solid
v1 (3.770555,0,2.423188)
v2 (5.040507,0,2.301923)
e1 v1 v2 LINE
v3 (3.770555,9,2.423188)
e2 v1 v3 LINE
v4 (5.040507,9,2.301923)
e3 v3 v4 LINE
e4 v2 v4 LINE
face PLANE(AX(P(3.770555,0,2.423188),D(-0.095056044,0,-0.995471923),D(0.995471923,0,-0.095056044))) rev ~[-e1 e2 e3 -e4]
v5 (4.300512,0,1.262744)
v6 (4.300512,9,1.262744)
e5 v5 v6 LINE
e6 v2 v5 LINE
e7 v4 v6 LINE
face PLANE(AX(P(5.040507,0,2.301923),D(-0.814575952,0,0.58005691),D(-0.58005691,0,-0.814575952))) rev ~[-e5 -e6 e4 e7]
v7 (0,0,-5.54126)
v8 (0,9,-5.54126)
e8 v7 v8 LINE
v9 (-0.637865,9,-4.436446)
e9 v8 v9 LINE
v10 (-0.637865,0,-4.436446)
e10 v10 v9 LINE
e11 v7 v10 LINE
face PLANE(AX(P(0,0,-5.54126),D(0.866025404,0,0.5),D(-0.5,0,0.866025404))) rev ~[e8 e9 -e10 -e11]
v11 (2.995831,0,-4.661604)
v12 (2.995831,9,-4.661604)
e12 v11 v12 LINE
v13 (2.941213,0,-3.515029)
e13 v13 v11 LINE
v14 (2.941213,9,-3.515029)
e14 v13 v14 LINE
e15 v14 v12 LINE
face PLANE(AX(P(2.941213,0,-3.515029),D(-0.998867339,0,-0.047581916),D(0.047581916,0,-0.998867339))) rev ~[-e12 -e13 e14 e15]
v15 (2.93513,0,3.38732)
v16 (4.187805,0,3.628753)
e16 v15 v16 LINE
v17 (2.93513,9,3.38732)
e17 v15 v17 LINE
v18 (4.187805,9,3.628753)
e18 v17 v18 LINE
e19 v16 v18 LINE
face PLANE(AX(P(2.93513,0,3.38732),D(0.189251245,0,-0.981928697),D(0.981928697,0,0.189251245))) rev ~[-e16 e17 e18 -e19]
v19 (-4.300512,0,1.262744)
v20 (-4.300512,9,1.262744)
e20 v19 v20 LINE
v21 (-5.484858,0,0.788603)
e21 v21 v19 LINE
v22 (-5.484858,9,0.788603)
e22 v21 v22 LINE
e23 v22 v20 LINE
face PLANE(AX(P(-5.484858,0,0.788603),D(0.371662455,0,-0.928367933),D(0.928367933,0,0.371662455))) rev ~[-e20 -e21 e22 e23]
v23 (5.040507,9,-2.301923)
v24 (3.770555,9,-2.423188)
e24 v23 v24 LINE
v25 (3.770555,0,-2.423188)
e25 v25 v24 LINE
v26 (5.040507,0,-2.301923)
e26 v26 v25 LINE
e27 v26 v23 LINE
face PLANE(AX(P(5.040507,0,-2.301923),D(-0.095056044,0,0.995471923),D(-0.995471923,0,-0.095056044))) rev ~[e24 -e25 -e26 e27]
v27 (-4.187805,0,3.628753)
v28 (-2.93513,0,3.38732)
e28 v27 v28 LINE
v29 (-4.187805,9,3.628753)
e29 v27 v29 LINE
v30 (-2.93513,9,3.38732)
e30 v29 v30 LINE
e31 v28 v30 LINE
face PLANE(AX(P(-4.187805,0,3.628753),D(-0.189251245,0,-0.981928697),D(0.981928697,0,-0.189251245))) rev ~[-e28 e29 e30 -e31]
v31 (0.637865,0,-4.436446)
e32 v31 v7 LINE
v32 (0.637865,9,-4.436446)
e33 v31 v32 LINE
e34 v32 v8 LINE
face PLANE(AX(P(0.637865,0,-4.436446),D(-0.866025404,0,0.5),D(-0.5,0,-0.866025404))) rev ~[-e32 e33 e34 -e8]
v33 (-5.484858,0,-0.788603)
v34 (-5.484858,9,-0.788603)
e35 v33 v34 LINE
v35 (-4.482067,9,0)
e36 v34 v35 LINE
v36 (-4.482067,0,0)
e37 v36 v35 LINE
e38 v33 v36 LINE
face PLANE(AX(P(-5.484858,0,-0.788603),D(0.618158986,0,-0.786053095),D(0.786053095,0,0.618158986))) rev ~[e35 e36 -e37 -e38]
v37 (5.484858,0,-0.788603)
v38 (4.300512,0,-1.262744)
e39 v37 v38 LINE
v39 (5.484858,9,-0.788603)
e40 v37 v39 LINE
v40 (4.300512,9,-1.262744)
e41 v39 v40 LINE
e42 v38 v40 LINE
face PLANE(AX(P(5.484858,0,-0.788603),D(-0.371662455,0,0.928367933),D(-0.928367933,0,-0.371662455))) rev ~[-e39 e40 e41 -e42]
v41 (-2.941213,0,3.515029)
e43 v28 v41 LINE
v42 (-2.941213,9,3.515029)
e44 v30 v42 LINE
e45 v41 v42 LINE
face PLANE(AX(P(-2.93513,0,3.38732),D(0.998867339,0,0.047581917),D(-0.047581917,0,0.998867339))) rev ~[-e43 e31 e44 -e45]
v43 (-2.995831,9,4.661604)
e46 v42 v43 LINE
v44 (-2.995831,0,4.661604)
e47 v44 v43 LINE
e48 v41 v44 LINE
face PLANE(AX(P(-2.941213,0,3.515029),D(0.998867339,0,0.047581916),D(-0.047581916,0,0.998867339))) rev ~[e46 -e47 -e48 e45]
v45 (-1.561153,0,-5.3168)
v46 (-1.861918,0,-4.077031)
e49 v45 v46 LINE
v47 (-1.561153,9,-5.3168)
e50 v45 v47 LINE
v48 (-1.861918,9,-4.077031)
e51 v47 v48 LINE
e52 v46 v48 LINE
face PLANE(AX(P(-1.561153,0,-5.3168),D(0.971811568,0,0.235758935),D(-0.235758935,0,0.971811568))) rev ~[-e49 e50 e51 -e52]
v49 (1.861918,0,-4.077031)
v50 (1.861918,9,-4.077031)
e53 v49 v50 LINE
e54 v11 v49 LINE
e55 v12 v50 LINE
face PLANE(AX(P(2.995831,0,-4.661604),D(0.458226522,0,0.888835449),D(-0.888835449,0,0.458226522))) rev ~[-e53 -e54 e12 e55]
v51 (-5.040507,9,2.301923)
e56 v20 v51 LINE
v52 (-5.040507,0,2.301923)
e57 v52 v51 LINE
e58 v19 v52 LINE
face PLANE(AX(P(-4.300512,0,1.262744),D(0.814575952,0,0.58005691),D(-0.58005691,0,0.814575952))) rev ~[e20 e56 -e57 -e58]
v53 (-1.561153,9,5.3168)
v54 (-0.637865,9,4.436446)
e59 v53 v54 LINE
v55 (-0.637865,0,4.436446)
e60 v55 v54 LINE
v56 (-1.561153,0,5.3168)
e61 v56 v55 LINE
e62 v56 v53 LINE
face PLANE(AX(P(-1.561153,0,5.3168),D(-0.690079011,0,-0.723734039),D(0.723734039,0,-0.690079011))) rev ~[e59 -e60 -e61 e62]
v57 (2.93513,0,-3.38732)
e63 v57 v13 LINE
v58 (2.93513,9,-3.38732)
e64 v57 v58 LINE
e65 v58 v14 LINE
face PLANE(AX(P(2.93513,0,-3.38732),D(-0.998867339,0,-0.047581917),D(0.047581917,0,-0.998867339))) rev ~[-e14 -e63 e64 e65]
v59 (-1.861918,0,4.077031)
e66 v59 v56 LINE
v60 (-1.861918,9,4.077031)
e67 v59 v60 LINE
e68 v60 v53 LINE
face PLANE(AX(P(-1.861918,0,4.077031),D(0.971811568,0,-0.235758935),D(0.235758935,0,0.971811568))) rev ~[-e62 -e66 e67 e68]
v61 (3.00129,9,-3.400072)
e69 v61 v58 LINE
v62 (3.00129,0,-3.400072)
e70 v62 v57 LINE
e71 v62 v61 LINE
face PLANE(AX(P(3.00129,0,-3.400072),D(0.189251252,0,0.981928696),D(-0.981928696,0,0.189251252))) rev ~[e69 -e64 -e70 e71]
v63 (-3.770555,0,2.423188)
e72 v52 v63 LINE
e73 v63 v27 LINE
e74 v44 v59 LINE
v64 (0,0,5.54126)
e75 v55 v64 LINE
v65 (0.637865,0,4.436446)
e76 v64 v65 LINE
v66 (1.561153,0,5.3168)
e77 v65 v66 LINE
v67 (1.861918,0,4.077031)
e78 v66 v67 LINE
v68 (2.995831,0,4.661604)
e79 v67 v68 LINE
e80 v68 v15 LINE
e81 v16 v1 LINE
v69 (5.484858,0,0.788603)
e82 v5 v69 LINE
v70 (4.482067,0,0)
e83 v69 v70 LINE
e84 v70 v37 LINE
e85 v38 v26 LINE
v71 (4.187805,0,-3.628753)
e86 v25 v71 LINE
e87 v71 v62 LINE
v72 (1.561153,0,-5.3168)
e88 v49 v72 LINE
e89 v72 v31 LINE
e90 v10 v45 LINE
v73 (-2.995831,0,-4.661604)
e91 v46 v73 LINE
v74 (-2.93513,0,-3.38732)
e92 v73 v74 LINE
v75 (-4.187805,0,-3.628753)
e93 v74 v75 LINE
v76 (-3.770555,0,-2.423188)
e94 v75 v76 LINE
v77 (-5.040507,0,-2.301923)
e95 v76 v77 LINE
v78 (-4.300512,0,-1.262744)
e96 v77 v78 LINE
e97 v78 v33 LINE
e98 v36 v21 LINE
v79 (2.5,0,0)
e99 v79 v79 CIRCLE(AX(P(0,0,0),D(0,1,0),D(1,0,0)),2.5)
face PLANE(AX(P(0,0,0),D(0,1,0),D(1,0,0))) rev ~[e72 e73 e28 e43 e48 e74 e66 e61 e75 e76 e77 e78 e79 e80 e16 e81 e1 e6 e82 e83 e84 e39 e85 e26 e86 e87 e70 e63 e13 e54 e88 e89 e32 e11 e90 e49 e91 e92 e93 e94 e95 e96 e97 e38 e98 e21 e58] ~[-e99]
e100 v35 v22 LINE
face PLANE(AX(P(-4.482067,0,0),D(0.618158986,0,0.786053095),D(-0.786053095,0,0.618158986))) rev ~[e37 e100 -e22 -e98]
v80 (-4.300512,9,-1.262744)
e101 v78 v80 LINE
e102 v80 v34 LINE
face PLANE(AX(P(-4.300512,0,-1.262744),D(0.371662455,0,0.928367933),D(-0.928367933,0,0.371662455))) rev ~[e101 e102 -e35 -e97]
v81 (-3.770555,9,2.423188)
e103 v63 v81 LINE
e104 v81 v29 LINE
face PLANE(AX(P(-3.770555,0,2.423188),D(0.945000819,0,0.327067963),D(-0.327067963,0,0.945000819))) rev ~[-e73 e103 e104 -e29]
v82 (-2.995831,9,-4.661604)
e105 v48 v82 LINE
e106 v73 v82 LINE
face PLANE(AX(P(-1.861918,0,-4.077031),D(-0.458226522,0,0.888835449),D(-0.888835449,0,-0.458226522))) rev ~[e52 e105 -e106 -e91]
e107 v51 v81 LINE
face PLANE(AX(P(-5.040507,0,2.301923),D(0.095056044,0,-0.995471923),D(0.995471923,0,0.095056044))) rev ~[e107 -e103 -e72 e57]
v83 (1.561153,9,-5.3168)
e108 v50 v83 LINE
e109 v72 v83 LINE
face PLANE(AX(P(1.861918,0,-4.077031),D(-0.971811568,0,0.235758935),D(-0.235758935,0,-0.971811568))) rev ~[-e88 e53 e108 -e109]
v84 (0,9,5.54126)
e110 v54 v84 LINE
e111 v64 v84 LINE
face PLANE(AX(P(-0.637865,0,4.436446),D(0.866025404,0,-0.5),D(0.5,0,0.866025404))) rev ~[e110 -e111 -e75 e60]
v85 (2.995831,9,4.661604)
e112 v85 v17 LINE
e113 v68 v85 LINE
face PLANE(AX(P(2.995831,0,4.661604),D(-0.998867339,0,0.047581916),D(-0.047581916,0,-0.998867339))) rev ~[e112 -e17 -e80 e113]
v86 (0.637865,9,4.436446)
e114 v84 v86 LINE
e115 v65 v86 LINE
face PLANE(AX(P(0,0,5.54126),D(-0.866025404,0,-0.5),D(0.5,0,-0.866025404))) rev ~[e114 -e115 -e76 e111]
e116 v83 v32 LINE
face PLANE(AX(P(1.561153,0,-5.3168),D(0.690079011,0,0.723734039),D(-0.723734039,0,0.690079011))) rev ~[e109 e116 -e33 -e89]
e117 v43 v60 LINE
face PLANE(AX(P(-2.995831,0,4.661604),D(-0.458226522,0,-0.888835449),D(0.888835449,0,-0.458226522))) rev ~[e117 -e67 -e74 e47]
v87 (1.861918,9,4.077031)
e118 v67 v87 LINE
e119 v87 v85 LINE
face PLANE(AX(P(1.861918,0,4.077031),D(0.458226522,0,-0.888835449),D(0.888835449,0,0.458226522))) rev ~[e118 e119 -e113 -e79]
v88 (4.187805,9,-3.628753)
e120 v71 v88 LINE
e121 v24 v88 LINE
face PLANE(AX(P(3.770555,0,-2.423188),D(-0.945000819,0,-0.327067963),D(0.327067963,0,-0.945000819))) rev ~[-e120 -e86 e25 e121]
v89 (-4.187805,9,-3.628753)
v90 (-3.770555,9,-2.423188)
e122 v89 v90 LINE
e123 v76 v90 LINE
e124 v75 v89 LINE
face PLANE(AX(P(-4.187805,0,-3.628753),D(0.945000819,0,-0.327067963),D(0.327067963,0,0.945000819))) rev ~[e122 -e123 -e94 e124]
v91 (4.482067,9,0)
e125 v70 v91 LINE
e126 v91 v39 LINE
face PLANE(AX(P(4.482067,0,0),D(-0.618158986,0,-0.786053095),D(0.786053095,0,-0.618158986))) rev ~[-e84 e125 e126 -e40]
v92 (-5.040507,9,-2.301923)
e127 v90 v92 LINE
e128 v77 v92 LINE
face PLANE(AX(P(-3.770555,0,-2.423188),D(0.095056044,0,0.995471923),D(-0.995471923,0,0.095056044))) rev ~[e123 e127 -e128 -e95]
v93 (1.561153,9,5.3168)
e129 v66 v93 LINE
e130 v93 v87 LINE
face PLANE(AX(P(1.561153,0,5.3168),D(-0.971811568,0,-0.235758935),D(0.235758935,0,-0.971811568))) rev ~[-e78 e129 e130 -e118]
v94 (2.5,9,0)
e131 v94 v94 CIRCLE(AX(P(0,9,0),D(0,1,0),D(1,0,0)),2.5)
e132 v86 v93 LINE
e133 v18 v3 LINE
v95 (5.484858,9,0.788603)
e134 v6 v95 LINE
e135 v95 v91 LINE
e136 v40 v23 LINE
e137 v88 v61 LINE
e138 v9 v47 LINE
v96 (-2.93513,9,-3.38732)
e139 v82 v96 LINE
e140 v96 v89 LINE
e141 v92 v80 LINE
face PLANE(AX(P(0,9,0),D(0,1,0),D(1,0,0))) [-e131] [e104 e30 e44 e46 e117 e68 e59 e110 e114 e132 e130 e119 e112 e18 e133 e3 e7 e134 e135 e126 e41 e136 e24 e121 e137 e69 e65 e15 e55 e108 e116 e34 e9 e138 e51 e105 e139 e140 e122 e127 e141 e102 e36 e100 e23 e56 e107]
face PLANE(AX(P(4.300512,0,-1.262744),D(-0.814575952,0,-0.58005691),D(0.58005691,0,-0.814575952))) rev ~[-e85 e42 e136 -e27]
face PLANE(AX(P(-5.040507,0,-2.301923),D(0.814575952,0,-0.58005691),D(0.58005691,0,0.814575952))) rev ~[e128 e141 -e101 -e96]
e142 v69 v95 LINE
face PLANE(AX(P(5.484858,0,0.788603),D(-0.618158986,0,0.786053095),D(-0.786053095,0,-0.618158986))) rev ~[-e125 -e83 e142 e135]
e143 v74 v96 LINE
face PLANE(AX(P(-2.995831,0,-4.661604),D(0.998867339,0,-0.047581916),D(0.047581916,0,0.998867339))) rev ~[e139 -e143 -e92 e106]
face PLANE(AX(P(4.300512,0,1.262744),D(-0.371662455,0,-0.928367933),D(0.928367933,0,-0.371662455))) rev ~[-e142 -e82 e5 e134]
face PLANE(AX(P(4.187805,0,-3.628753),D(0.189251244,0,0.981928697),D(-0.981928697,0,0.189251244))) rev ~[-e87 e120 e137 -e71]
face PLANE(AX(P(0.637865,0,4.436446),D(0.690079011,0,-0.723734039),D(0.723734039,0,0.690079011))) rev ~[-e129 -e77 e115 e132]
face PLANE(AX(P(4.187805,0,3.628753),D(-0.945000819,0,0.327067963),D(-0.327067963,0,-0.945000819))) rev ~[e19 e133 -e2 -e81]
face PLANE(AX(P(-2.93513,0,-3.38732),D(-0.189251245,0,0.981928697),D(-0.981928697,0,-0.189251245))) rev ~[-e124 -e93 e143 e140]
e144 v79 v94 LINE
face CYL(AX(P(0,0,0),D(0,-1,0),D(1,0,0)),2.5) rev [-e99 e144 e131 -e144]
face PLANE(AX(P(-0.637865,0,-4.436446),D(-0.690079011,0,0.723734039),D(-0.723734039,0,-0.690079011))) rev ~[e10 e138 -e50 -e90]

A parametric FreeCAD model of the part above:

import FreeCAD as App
import Part
import Sketcher
from FreeCAD import Vector
Q = App.Units.Quantity


def add_polygon(sketch, points):
    """Adds a closed chain of lines whose ends are joined by coincident constraints."""
    first, n = sketch.GeometryCount, len(points)
    for a, b in zip(points, points[1:] + points[:1]):
        sketch.addGeometry(Part.LineSegment(App.Vector(*a, 0), App.Vector(*b, 0)), False)
    for i in range(n):
        sketch.addConstraint(Sketcher.Constraint("Coincident", first + i, 2, first + (i + 1) % n, 1))

doc = App.newDocument("Part")
body = doc.addObject("PartDesign::Body", "Body")

sketch1 = body.newObject("Sketcher::SketchObject", "Sketch")
sketch1.AttachmentSupport = (doc.getObject("XZ_Plane"), [""])
sketch1.MapMode = "FlatFace"
add_polygon(sketch1, [(1.56, -5.32), (0.64, -4.44), (0, -5.54), (-0.64, -4.44), (-1.56, -5.32), (-1.86, -4.08), (-3, -4.66), (-2.94, -3.39), (-4.19, -3.63), (-3.77, -2.42), (-5.04, -2.3), (-4.3, -1.26), (-5.48, -0.79), (-4.48, 0), (-5.48, 0.79), (-4.3, 1.26), (-5.04, 2.3), (-3.77, 2.42), (-4.19, 3.63), (-2.94, 3.39), (-2.94, 3.52), (-3, 4.66), (-1.86, 4.08), (-1.56, 5.32), (-0.64, 4.44), (0, 5.54), (0.64, 4.44), (1.56, 5.32), (1.86, 4.08), (3, 4.66), (2.94, 3.39), (4.19, 3.63), (3.77, 2.42), (5.04, 2.3), (4.3, 1.26), (5.48, 0.79), (4.48, 0), (5.48, -0.79), (4.3, -1.26), (5.04, -2.3), (3.77, -2.42), (4.19, -3.63), (3, -3.4), (2.94, -3.39), (2.94, -3.52), (3, -4.66), (1.86, -4.08)])
sketch1.addGeometry(Part.Circle(Vector(0, 0, 0), Vector(0, 0, 1), 2.5), False)
sketch1.addConstraint([
    Sketcher.Constraint("Coincident", 47, 3, -1, 1),
    Sketcher.Constraint("Symmetric", 0, 2, 23, 2, -1, 1),
    Sketcher.Constraint("Symmetric", 1, 2, 24, 2, -1, 1),
    Sketcher.Constraint("Symmetric", 2, 2, 25, 2, -1, 1),
    Sketcher.Constraint("Symmetric", 3, 2, 26, 2, -1, 1),
    Sketcher.Constraint("Symmetric", 4, 2, 27, 2, -1, 1),
    Sketcher.Constraint("Symmetric", 5, 2, 28, 2, -1, 1),
    Sketcher.Constraint("Symmetric", 6, 2, 29, 2, -1, 1),
    Sketcher.Constraint("Symmetric", 7, 2, 30, 2, -1, 1),
    Sketcher.Constraint("Symmetric", 8, 2, 31, 2, -1, 1),
    Sketcher.Constraint("Symmetric", 9, 2, 32, 2, -1, 1),
    Sketcher.Constraint("Symmetric", 10, 2, 33, 2, -1, 1),
    Sketcher.Constraint("Symmetric", 11, 2, 34, 2, -1, 1),
    Sketcher.Constraint("Symmetric", 12, 2, 35, 2, -1, 1),
    Sketcher.Constraint("Symmetric", 13, 2, 36, 2, -1, 1),
    Sketcher.Constraint("Symmetric", 14, 2, 37, 2, -1, 1),
    Sketcher.Constraint("Symmetric", 15, 2, 38, 2, -1, 1),
    Sketcher.Constraint("Symmetric", 16, 2, 39, 2, -1, 1),
    Sketcher.Constraint("Symmetric", 17, 2, 40, 2, -1, 1),
    Sketcher.Constraint("Symmetric", 18, 2, 42, 2, -1, 1),
    Sketcher.Constraint("Symmetric", 19, 2, 43, 2, -1, 1),
    Sketcher.Constraint("Symmetric", 20, 2, 44, 2, -1, 1),
    Sketcher.Constraint("Symmetric", 21, 2, 45, 2, -1, 1),
    Sketcher.Constraint("Symmetric", 22, 2, 46, 2, -1, 1),
    Sketcher.Constraint("Symmetric", 0, 2, 2, 2, -2),
    Sketcher.Constraint("Symmetric", 22, 2, 26, 2, -2),
    Sketcher.Constraint("Symmetric", 21, 2, 27, 2, -2),
    Sketcher.Constraint("Symmetric", 20, 2, 28, 2, -2),
    Sketcher.Constraint("Symmetric", 18, 2, 29, 2, -2),
    Sketcher.Constraint("Symmetric", 17, 2, 30, 2, -2),
    Sketcher.Constraint("Symmetric", 16, 2, 31, 2, -2),
    Sketcher.Constraint("Symmetric", 15, 2, 32, 2, -2),
    Sketcher.Constraint("Symmetric", 14, 2, 33, 2, -2),
    Sketcher.Constraint("Symmetric", 13, 2, 34, 2, -2),
    Sketcher.Constraint("PointOnObject", 1, 2, -2),
    Sketcher.Constraint("PointOnObject", 12, 2, -1),
    Sketcher.Constraint("Parallel", 19, 20),
    Sketcher.Constraint("Parallel", 18, 41),
    Sketcher.Constraint("Equal", 0, 1),
    Sketcher.Constraint("Equal", 3, 4),
    Sketcher.Constraint("Equal", 4, 5),
    Sketcher.Constraint("Equal", 5, 6),
    Sketcher.Constraint("Equal", 6, 7),
    Sketcher.Constraint("Equal", 7, 8),
    Sketcher.Constraint("Equal", 8, 9),
    Sketcher.Constraint("Equal", 9, 10),
    Sketcher.Constraint("Equal", 10, 11),
    Sketcher.Constraint("Equal", 11, 12),
    Sketcher.Constraint("Diameter", 47, Q("5 mm")),
    Sketcher.Constraint("Angle", 1, Q("-120 deg")),
    Sketcher.Constraint("DistanceY", 3, 2, -1, 1, Q("5.3168 mm")),
    Sketcher.Constraint("DistanceX", 5, 2, 6, 2, Q("0.060702 mm")),
    Sketcher.Constraint("DistanceX", 8, 2, 3, 2, Q("2.209401 mm")),
    Sketcher.Constraint("DistanceX", 14, 2, 19, 2, Q("1.359299 mm")),
    Sketcher.Constraint("Distance", 0, Q("1.275729 mm")),
    Sketcher.Constraint("Distance", 41, Q("1.208351 mm")),
    Sketcher.Constraint("DistanceY", 1, 2, -1, 1, Q("5.54126 mm")),
    Sketcher.Constraint("DistanceY", 4, 2, -1, 1, Q("4.077031 mm")),
    Sketcher.Constraint("DistanceX", 5, 2, -1, 1, Q("2.995831 mm")),
    Sketcher.Constraint("DistanceY", 8, 2, -1, 1, Q("2.423188 mm")),
    Sketcher.Constraint("DistanceX", 10, 2, -1, 1, Q("4.300512 mm")),
    Sketcher.Constraint("DistanceY", 7, 2, 9, 2, Q("1.326831 mm")),
    Sketcher.Constraint("DistanceY", 10, 2, 11, 2, Q("0.474141 mm")),
])
pad1 = body.newObject("PartDesign::Pad", "Pad")
pad1.Profile = sketch1
pad1.Length = 9
pad1.Reversed = True

doc.recompute()
